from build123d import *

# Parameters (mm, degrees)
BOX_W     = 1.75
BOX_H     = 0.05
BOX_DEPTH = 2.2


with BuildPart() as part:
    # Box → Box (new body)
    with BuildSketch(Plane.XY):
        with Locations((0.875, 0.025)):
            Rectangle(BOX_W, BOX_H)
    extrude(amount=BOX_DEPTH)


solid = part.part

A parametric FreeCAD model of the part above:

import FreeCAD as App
import Part
import Sketcher
from FreeCAD import Vector

doc = App.newDocument("Part")
body = doc.addObject("PartDesign::Body", "Body")

sketch1 = body.newObject("Sketcher::SketchObject", "Sketch")
sketch1.AttachmentSupport = (doc.getObject("XY_Plane"), [""])
sketch1.MapMode = "FlatFace"
sketch1.addGeometry([
    Part.LineSegment(Vector(0, 0.05, 0), Vector(0, 0, 0)),
    Part.LineSegment(Vector(0, 0, 0), Vector(1.75, 0, 0)),
    Part.LineSegment(Vector(1.75, 0, 0), Vector(1.75, 0.05, 0)),
    Part.LineSegment(Vector(1.75, 0.05, 0), Vector(0, 0.05, 0)),
], False)
sketch1.addConstraint([
    Sketcher.Constraint("Coincident", 0, 2, 1, 1),
    Sketcher.Constraint("Coincident", 1, 2, 2, 1),
    Sketcher.Constraint("Coincident", 2, 2, 3, 1),
    Sketcher.Constraint("Coincident", 3, 2, 0, 1),
    Sketcher.Constraint("Vertical", 0),
    Sketcher.Constraint("Horizontal", 1),
    Sketcher.Constraint("Vertical", 2),
    Sketcher.Constraint("Horizontal", 3),
    Sketcher.Constraint("Coincident", 0, 2, -1, 1),
    Sketcher.Constraint("DistanceX", 1, 1, 1, 2, 1.75),
    Sketcher.Constraint("DistanceY", 0, 2, 0, 1, 0.05),
])
pad1 = body.newObject("PartDesign::Pad", "Pad")
pad1.Profile = sketch1
pad1.Length = 2.2

doc.recompute()
